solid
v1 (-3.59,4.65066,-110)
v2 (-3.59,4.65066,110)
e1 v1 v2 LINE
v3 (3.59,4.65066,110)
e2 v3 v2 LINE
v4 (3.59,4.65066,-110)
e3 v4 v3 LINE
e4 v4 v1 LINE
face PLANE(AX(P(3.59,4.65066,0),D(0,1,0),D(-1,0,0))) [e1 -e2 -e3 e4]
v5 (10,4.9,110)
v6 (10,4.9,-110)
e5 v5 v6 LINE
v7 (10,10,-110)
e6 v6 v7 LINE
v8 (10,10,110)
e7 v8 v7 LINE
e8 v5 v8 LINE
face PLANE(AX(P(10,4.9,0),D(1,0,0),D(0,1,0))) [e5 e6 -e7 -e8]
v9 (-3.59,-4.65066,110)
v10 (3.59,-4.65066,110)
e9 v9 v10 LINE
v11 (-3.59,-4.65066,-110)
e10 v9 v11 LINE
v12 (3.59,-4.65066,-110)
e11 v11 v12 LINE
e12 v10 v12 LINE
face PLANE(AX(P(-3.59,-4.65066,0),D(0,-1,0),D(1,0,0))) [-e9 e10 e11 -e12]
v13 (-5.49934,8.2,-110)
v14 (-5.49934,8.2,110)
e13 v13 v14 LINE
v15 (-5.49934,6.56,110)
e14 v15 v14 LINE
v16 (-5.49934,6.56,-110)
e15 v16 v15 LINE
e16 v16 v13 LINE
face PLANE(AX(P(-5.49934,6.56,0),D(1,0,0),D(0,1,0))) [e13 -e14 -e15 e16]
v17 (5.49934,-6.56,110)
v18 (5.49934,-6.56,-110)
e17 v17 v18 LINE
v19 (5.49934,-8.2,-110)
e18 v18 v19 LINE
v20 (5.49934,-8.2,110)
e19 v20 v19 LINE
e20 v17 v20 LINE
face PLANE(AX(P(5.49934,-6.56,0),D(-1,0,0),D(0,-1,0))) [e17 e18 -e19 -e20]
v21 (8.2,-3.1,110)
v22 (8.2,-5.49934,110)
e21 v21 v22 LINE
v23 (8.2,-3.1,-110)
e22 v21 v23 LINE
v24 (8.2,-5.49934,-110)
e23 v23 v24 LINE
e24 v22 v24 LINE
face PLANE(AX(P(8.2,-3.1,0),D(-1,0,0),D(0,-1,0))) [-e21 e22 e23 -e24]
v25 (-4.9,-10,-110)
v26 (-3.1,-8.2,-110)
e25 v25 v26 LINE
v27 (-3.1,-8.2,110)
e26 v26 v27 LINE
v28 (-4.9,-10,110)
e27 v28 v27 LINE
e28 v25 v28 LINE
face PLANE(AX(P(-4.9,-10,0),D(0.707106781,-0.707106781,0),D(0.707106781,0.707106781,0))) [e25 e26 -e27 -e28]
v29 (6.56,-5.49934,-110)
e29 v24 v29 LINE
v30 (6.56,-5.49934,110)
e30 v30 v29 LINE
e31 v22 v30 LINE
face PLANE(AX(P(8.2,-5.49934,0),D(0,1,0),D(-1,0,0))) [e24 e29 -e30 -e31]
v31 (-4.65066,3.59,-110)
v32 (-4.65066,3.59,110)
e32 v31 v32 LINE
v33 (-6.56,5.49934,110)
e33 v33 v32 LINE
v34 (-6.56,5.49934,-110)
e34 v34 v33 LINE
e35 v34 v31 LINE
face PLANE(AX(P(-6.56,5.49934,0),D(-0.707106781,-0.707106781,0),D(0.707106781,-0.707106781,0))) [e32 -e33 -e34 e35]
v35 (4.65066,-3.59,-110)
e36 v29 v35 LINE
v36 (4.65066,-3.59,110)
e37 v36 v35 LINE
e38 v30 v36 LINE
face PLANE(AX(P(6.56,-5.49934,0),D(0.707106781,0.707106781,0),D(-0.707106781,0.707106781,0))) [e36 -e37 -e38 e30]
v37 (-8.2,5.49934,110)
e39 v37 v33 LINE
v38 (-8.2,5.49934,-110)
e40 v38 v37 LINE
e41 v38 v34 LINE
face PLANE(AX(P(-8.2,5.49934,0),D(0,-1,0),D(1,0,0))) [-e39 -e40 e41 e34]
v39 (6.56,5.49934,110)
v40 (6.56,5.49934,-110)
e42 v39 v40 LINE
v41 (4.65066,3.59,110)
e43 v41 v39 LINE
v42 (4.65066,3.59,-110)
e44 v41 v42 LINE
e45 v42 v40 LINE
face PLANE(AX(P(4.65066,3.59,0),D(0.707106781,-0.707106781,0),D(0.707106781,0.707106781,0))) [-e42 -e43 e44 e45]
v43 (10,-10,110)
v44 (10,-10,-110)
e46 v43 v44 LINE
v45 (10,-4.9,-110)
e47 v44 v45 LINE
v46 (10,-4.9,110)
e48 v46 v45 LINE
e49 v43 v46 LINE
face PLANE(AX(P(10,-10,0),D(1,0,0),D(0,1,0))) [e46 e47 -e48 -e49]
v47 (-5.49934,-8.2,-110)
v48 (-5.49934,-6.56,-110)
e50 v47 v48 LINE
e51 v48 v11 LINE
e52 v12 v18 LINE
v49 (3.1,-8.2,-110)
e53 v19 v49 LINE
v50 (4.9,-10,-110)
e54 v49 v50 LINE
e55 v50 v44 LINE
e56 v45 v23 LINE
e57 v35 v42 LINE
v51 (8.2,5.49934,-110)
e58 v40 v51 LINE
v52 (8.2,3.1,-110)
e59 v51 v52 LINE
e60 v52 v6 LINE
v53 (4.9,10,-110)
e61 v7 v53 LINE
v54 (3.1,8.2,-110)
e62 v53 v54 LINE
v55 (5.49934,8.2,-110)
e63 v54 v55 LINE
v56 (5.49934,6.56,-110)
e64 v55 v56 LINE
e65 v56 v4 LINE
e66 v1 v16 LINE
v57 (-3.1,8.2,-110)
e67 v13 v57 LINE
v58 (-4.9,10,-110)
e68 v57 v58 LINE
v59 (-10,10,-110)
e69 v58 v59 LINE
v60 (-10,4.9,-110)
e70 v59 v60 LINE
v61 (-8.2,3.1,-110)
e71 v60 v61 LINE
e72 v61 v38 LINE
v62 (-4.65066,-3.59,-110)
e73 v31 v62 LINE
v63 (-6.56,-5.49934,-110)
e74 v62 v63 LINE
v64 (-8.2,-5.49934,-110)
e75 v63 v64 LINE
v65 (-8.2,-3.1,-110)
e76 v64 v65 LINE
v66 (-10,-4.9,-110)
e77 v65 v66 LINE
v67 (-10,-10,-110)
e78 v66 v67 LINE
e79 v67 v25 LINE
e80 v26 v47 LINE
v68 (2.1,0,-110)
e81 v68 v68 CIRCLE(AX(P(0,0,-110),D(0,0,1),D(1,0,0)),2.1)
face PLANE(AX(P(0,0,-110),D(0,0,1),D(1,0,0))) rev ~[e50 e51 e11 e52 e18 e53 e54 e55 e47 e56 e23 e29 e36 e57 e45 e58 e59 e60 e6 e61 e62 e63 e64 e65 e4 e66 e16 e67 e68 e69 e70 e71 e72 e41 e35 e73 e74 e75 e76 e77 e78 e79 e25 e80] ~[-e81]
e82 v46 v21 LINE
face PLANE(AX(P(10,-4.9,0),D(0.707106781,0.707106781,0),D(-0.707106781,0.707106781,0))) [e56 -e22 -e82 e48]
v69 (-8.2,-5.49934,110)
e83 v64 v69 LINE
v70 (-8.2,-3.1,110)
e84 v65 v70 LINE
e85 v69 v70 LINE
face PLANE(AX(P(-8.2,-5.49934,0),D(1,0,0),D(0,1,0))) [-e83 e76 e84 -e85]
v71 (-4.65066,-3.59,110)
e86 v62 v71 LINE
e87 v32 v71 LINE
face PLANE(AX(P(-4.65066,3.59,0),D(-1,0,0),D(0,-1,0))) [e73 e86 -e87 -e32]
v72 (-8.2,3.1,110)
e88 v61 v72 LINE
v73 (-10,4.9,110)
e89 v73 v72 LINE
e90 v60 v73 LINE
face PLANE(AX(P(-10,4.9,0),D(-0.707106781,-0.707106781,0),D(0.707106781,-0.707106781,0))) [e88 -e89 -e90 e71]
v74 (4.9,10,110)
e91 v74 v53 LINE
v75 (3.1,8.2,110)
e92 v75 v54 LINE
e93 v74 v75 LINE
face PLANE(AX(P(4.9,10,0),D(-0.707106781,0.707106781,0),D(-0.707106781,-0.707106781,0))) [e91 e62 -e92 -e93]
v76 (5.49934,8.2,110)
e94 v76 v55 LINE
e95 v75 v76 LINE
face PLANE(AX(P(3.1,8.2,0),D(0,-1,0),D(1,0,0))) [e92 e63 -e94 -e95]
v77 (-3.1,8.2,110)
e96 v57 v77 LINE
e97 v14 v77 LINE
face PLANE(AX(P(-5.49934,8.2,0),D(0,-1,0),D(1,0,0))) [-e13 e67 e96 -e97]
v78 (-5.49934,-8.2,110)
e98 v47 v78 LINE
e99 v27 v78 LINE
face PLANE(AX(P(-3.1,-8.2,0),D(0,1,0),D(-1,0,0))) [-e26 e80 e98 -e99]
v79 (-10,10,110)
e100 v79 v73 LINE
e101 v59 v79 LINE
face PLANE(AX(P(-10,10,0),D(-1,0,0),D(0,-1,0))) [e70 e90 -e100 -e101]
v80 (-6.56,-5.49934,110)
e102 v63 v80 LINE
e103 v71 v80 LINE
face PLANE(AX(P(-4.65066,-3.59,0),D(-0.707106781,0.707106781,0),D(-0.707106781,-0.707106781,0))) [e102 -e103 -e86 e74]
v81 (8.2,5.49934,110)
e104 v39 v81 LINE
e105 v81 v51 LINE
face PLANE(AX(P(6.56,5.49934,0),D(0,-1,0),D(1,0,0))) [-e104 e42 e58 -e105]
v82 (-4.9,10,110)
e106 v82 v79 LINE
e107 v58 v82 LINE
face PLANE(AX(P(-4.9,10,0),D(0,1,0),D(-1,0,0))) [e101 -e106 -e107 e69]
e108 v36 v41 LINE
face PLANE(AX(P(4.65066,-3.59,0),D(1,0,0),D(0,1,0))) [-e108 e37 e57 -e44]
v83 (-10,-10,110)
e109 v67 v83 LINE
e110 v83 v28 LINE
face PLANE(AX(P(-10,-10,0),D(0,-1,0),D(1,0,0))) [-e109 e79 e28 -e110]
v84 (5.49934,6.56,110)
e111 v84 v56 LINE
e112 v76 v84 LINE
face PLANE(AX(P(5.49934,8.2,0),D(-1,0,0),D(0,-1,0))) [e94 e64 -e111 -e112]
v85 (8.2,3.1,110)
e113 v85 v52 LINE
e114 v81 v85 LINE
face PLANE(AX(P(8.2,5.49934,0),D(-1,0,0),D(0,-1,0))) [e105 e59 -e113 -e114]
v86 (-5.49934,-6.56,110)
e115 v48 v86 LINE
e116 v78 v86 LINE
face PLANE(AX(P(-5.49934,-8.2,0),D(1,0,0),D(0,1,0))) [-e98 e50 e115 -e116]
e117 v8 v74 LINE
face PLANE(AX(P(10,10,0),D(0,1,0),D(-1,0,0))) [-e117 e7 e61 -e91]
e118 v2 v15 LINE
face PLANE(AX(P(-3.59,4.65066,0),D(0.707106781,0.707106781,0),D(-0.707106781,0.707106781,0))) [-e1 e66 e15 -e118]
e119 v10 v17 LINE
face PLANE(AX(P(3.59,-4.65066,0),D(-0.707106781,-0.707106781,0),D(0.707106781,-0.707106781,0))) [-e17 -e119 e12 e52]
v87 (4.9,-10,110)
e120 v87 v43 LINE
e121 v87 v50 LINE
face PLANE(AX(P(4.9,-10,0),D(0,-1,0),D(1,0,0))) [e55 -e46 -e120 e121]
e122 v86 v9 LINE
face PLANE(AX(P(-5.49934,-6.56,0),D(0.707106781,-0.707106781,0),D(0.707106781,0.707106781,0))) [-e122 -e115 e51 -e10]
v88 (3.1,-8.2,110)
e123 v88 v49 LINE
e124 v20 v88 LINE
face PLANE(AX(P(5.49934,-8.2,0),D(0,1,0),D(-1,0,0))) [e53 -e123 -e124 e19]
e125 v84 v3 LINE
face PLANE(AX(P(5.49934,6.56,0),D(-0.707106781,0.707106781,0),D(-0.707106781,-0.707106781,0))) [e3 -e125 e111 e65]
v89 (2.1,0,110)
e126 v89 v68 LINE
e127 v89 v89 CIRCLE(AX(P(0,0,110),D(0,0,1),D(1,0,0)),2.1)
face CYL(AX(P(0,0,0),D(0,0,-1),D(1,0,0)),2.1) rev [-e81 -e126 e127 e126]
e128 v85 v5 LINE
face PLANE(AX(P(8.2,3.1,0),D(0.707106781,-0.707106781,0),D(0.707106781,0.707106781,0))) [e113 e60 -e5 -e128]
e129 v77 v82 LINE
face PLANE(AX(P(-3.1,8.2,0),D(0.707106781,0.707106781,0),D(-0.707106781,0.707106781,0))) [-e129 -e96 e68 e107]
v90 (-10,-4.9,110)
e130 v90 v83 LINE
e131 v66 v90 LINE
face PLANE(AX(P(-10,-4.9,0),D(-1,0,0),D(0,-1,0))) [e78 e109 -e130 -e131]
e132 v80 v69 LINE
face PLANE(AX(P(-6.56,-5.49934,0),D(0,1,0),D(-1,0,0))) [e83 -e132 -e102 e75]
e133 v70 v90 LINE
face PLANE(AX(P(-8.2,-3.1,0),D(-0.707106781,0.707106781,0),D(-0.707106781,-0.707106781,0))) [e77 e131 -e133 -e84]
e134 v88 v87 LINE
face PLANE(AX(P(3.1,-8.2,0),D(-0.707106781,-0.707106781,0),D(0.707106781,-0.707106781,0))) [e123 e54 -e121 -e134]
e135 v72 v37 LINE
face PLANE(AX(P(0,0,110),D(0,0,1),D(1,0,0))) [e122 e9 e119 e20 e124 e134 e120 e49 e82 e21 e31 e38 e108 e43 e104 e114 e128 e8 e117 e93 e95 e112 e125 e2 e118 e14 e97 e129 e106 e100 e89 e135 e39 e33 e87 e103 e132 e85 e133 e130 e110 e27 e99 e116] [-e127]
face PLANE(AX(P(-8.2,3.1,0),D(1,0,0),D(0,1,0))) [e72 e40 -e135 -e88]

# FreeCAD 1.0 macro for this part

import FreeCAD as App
import Part
import Sketcher

V = App.Vector
Q = App.Units.Quantity


def add_polygon(sketch, points):
    """Adds a closed chain of lines whose ends are joined by coincident constraints."""
    first, n = sketch.GeometryCount, len(points)
    for a, b in zip(points, points[1:] + points[:1]):
        sketch.addGeometry(Part.LineSegment(App.Vector(*a, 0), App.Vector(*b, 0)), False)
    for i in range(n):
        sketch.addConstraint(Sketcher.Constraint("Coincident", first + i, 2, first + (i + 1) % n, 1))

doc = App.newDocument("Part")
params = doc.addObject("Spreadsheet::Sheet", "Params")
for row, (alias, value) in enumerate([
    ("sketch1_diameter", "4.2 mm"),
    ("sketch1_width", "5.1 mm"),
    ("sketch1_width2", "7.18 mm"),
    ("sketch1_width3", "1.64 mm"),
    ("pad1_length", "220 mm"),
], start=1):
    params.set(f"A{row}", alias)
    params.set(f"B{row}", "=" + value)
    params.setAlias(f"B{row}", alias)

body = doc.addObject("PartDesign::Body", "Body")

# Sketch on XY plane
sketch1 = body.newObject("Sketcher::SketchObject", "Sketch")
sketch1.AttachmentSupport = (doc.getObject("XY_Plane"), [""])
sketch1.MapMode = "FlatFace"
add_polygon(sketch1, [(5.5, 6.6), (3.6, 4.7), (-3.6, 4.7), (-5.5, 6.6), (-5.5, 8.2), (-3.1, 8.2), (-4.9, 10), (-10, 10), (-10, 4.9), (-8.2, 3.1), (-8.2, 5.5), (-6.6, 5.5), (-4.7, 3.6), (-4.7, -3.6), (-6.6, -5.5), (-8.2, -5.5), (-8.2, -3.1), (-10, -4.9), (-10, -10), (-4.9, -10), (-3.1, -8.2), (-5.5, -8.2), (-5.5, -6.6), (-3.6, -4.7), (3.6, -4.7), (5.5, -6.6), (5.5, -8.2), (3.1, -8.2), (4.9, -10), (10, -10), (10, -4.9), (8.2, -3.1), (8.2, -5.5), (6.6, -5.5), (4.7, -3.6), (4.7, 3.6), (6.6, 5.5), (8.2, 5.5), (8.2, 3.1), (10, 4.9), (10, 10), (4.9, 10), (3.1, 8.2), (5.5, 8.2)])  # lines 0-43
sketch1.addGeometry(Part.Circle(V(0, 0, 0), V(0, 0, 1), 2.1), False)  # 44
sketch1.addConstraint(Sketcher.Constraint("Horizontal", 1))
sketch1.addConstraint(Sketcher.Constraint("Vertical", 3))
sketch1.addConstraint(Sketcher.Constraint("Horizontal", 4))
sketch1.addConstraint(Sketcher.Constraint("Horizontal", 6))
sketch1.addConstraint(Sketcher.Constraint("Vertical", 7))
sketch1.addConstraint(Sketcher.Constraint("Vertical", 9))
sketch1.addConstraint(Sketcher.Constraint("Horizontal", 10))
sketch1.addConstraint(Sketcher.Constraint("Vertical", 12))
sketch1.addConstraint(Sketcher.Constraint("Horizontal", 14))
sketch1.addConstraint(Sketcher.Constraint("Vertical", 15))
sketch1.addConstraint(Sketcher.Constraint("Vertical", 17))
sketch1.addConstraint(Sketcher.Constraint("Horizontal", 18))
sketch1.addConstraint(Sketcher.Constraint("Horizontal", 20))
sketch1.addConstraint(Sketcher.Constraint("Vertical", 21))
sketch1.addConstraint(Sketcher.Constraint("Horizontal", 23))
sketch1.addConstraint(Sketcher.Constraint("Vertical", 25))
sketch1.addConstraint(Sketcher.Constraint("Horizontal", 26))
sketch1.addConstraint(Sketcher.Constraint("Horizontal", 28))
sketch1.addConstraint(Sketcher.Constraint("Vertical", 29))
sketch1.addConstraint(Sketcher.Constraint("Vertical", 31))
sketch1.addConstraint(Sketcher.Constraint("Horizontal", 32))
sketch1.addConstraint(Sketcher.Constraint("Vertical", 34))
sketch1.addConstraint(Sketcher.Constraint("Horizontal", 36))
sketch1.addConstraint(Sketcher.Constraint("Vertical", 37))
sketch1.addConstraint(Sketcher.Constraint("Vertical", 39))
sketch1.addConstraint(Sketcher.Constraint("Horizontal", 40))
sketch1.addConstraint(Sketcher.Constraint("Horizontal", 42))
sketch1.addConstraint(Sketcher.Constraint("Vertical", 43))
sketch1.addConstraint(Sketcher.Constraint("Coincident", 44, 3, -1, 1))
sketch1.addConstraint(Sketcher.Constraint("Symmetric", 0, 2, 22, 2, -1, 1))
sketch1.addConstraint(Sketcher.Constraint("Symmetric", 2, 2, 24, 2, -1, 1))
sketch1.addConstraint(Sketcher.Constraint("Symmetric", 4, 2, 26, 2, -1, 1))
sketch1.addConstraint(Sketcher.Constraint("Symmetric", 5, 2, 27, 2, -1, 1))
sketch1.addConstraint(Sketcher.Constraint("Symmetric", 7, 2, 29, 2, -1, 1))
sketch1.addConstraint(Sketcher.Constraint("Symmetric", 8, 2, 30, 2, -1, 1))
sketch1.addConstraint(Sketcher.Constraint("Symmetric", 10, 2, 32, 2, -1, 1))
sketch1.addConstraint(Sketcher.Constraint("Symmetric", 11, 2, 33, 2, -1, 1))
sketch1.addConstraint(Sketcher.Constraint("Symmetric", 13, 2, 35, 2, -1, 1))
sketch1.addConstraint(Sketcher.Constraint("Symmetric", 15, 2, 37, 2, -1, 1))
sketch1.addConstraint(Sketcher.Constraint("Symmetric", 16, 2, 38, 2, -1, 1))
sketch1.addConstraint(Sketcher.Constraint("Symmetric", 18, 2, 40, 2, -1, 1))
sketch1.addConstraint(Sketcher.Constraint("Symmetric", 19, 2, 41, 2, -1, 1))
sketch1.addConstraint(Sketcher.Constraint("Symmetric", 21, 2, 43, 2, -1, 1))
sketch1.addConstraint(Sketcher.Constraint("Symmetric", 21, 2, 24, 2, -2))
sketch1.addConstraint(Sketcher.Constraint("Symmetric", 19, 2, 26, 2, -2))
sketch1.addConstraint(Sketcher.Constraint("Symmetric", 18, 2, 27, 2, -2))
sketch1.addConstraint(Sketcher.Constraint("Symmetric", 16, 2, 29, 2, -2))
sketch1.addConstraint(Sketcher.Constraint("Symmetric", 15, 2, 30, 2, -2))
sketch1.addConstraint(Sketcher.Constraint("Symmetric", 13, 2, 32, 2, -2))
sketch1.addConstraint(Sketcher.Constraint("Perpendicular", 0, 2))
sketch1.addConstraint(Sketcher.Constraint("Parallel", 2, 5))
sketch1.addConstraint(Sketcher.Constraint("Parallel", 5, 8))
sketch1.addConstraint(Sketcher.Constraint("Parallel", 8, 11))
sketch1.addConstraint(Sketcher.Constraint("Perpendicular", 11, 13))
sketch1.addConstraint(Sketcher.Constraint("Parallel", 13, 16))
sketch1.addConstraint(Sketcher.Constraint("Perpendicular", 22, 24))
sketch1.addConstraint(Sketcher.Constraint("Perpendicular", 33, 35))
sketch1.addConstraint(Sketcher.Constraint("Equal", 36, 3))
sketch1.addConstraint(Sketcher.Constraint("Equal", 40, 7))
sketch1.addConstraint(Sketcher.Constraint("Equal", 42, 9))
sketch1.addConstraint(Sketcher.Constraint("Equal", 23, 12))
sketch1.addConstraint(Sketcher.Constraint("Equal", 5, 8))
sketch1.addConstraint(Sketcher.Constraint("Equal", 2, 11))
sketch1.addConstraint(Sketcher.Constraint("Diameter", 44, Q("4.2 mm")))
sketch1.addConstraint(Sketcher.Constraint("DistanceX", 6, 2, 6, 1, Q("5.1 mm")))
sketch1.addConstraint(Sketcher.Constraint("DistanceY", -1, 1, 5, 2, Q("10 mm")))
sketch1.addConstraint(Sketcher.Constraint("DistanceY", 16, 2, 8, 2, Q("8 mm")))
sketch1.addConstraint(Sketcher.Constraint("DistanceX", 1, 2, 1, 1, Q("7.18 mm")))
sketch1.addConstraint(Sketcher.Constraint("DistanceX", 10, 1, 10, 2, Q("1.64 mm")))
sketch1.addConstraint(Sketcher.Constraint("DistanceX", 4, 1, 4, 2, Q("2.39934 mm")))
sketch1.setExpression("Constraints[107]", "Params.sketch1_diameter")
sketch1.setExpression("Constraints[108]", "Params.sketch1_width")
sketch1.setExpression("Constraints[111]", "Params.sketch1_width2")
sketch1.setExpression("Constraints[112]", "Params.sketch1_width3")
pad1 = body.newObject("PartDesign::Pad", "Pad")
pad1.Profile = sketch1
pad1.setExpression("Length", "Params.pad1_length")
pad1.Midplane = True

doc.recompute()
